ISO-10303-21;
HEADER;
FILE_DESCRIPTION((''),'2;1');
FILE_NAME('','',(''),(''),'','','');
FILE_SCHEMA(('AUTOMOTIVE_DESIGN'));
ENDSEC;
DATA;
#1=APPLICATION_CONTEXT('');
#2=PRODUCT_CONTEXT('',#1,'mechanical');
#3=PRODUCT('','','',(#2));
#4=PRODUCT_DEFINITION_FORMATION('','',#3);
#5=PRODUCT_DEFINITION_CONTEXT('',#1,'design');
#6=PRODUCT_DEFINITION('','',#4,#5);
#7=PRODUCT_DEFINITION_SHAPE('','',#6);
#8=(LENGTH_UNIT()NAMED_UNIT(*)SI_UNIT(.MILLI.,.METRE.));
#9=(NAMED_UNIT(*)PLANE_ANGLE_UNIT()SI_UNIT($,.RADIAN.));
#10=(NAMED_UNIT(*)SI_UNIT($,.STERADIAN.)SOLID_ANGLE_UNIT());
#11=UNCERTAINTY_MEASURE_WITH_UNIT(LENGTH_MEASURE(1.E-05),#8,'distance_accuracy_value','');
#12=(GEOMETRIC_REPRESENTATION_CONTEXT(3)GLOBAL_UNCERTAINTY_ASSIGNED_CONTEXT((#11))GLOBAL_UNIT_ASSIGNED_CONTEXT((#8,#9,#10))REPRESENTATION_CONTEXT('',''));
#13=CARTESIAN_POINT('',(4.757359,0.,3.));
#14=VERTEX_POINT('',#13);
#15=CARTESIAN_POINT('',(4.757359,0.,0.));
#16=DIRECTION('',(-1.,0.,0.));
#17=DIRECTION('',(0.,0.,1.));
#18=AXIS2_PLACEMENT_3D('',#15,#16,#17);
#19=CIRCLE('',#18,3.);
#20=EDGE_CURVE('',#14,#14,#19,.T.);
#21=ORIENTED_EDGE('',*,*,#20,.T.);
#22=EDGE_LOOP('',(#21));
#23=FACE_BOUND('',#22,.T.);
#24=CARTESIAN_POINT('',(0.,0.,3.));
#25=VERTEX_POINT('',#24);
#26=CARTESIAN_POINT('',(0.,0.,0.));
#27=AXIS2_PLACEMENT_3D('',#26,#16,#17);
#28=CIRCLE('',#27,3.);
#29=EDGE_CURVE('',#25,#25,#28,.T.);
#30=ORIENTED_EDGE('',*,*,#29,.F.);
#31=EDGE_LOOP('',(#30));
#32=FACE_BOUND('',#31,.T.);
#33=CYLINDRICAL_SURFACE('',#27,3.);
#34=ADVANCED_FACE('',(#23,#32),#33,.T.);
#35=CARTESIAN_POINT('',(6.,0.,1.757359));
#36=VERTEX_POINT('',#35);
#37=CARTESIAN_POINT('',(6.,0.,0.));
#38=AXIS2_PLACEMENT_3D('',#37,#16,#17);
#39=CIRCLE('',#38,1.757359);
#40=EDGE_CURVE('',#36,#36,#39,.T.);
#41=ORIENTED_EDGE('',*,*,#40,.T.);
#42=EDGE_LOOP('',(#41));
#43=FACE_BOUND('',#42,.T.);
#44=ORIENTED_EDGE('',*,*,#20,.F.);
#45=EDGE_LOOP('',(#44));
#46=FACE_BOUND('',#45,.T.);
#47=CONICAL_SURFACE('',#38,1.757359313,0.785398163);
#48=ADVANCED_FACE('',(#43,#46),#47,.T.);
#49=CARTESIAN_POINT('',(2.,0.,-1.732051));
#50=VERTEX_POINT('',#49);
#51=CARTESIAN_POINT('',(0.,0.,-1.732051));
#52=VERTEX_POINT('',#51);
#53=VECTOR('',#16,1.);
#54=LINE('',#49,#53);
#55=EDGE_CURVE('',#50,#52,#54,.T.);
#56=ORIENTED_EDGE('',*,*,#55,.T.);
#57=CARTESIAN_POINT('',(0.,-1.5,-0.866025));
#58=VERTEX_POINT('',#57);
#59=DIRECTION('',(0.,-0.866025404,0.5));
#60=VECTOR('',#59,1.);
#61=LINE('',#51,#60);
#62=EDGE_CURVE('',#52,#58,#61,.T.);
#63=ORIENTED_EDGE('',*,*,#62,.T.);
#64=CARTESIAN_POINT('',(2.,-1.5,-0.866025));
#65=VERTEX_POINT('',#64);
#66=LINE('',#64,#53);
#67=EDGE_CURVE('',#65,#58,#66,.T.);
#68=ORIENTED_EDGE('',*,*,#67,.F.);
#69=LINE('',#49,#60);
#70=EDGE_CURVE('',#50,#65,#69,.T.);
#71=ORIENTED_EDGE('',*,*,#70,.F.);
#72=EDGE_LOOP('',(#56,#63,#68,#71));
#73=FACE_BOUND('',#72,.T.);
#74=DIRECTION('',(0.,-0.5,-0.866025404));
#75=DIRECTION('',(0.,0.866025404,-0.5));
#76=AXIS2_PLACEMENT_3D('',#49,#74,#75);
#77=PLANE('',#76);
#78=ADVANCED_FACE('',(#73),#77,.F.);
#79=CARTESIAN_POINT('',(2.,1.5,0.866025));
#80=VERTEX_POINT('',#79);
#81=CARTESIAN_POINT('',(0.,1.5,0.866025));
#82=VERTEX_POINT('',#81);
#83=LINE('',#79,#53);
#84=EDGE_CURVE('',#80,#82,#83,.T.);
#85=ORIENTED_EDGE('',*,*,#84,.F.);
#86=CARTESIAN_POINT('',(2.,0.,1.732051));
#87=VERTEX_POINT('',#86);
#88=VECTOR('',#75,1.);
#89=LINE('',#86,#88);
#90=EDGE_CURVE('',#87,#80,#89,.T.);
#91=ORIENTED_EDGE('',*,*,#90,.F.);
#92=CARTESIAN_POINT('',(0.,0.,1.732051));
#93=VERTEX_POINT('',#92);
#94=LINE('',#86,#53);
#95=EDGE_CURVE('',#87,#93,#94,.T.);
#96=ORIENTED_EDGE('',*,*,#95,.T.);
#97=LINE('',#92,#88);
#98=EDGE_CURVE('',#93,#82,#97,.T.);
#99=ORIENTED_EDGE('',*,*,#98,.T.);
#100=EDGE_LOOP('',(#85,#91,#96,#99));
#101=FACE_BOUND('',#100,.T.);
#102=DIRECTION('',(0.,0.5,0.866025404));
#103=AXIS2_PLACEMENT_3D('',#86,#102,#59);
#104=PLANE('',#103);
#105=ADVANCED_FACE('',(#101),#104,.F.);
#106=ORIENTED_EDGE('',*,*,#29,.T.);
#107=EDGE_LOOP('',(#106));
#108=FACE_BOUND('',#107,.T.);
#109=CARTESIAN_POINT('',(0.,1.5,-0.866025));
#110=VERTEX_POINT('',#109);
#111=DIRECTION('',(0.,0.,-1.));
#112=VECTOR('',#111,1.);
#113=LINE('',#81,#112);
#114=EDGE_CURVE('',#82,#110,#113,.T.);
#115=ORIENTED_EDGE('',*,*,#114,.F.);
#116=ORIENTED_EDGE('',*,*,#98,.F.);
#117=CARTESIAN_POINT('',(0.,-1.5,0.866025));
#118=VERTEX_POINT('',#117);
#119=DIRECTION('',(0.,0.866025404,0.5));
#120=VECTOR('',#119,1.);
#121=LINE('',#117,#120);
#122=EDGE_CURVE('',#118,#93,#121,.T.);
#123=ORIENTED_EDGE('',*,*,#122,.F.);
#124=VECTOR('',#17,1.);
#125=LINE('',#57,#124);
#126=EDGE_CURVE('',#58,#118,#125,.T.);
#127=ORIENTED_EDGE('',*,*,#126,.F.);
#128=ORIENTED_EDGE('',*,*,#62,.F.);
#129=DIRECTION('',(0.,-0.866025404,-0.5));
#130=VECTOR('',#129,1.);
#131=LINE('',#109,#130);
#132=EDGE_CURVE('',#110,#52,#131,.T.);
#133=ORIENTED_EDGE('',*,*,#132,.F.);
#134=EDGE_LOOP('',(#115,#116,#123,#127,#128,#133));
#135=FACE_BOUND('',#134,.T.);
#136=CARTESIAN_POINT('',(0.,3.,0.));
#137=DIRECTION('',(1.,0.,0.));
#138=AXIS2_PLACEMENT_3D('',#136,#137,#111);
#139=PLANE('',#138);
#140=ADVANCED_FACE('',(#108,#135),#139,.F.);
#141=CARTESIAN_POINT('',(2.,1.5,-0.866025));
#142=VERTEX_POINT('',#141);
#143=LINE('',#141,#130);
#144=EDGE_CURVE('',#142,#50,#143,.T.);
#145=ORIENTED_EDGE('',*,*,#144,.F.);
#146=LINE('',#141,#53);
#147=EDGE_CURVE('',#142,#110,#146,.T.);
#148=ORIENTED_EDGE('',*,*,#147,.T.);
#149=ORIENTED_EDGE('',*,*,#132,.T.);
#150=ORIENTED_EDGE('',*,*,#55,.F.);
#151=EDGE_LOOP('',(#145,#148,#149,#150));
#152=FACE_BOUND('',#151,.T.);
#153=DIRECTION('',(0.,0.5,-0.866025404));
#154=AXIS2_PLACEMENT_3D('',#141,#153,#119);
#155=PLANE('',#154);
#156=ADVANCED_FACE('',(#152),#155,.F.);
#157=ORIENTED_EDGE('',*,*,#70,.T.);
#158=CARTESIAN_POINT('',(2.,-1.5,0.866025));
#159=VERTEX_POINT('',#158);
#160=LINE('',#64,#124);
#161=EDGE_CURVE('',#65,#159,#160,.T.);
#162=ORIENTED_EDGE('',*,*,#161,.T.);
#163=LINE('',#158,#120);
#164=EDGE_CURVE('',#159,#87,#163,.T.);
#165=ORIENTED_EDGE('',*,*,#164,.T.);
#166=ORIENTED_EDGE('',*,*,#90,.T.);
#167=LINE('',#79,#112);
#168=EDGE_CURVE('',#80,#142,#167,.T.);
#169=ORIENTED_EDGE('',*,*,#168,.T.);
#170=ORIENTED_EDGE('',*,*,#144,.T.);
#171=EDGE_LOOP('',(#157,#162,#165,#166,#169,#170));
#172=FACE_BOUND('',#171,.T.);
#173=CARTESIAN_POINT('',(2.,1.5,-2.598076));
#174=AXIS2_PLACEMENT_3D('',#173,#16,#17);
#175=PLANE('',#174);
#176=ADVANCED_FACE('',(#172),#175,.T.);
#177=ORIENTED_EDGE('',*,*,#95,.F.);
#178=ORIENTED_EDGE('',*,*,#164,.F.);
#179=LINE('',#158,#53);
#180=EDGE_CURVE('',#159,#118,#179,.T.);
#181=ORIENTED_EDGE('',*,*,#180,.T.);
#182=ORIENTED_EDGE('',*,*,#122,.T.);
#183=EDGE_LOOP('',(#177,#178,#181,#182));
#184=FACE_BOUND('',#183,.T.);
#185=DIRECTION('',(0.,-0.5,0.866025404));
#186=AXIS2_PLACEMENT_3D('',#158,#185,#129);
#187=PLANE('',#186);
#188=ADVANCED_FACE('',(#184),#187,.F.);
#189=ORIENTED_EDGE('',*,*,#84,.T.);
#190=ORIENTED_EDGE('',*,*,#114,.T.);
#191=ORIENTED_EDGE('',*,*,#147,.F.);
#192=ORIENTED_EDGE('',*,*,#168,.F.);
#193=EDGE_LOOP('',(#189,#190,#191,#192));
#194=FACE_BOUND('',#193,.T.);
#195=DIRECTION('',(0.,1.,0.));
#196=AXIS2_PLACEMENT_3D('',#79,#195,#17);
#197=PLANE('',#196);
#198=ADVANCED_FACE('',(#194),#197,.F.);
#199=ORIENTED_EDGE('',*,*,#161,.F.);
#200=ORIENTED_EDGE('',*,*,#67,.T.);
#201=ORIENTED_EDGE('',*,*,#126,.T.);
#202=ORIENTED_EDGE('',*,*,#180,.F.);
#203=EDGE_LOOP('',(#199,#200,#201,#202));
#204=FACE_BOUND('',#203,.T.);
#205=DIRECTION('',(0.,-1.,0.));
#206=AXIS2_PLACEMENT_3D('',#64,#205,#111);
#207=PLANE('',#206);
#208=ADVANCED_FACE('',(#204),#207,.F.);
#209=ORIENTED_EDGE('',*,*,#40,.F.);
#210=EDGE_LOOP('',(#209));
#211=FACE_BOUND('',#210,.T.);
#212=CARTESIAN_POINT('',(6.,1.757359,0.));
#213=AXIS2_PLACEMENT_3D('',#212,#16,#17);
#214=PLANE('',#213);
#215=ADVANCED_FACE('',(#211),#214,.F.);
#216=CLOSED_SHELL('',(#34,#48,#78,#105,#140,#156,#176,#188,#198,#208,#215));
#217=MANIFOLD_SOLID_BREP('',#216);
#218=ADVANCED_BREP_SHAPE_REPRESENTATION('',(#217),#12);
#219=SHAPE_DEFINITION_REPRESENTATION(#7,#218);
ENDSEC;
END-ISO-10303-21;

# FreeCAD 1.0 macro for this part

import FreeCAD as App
import Part
import Sketcher
from FreeCAD import Vector
Q = App.Units.Quantity


def add_polygon(sketch, points):
    """Adds a closed chain of lines whose ends are joined by coincident constraints."""
    first, n = sketch.GeometryCount, len(points)
    for a, b in zip(points, points[1:] + points[:1]):
        sketch.addGeometry(Part.LineSegment(App.Vector(*a, 0), App.Vector(*b, 0)), False)
    for i in range(n):
        sketch.addConstraint(Sketcher.Constraint("Coincident", first + i, 2, first + (i + 1) % n, 1))

doc = App.newDocument("Part")
body = doc.addObject("PartDesign::Body", "Body")

sketch1 = body.newObject("Sketcher::SketchObject", "Sketch")
sketch1.AttachmentSupport = (doc.getObject("XY_Plane"), [""])
sketch1.MapMode = "FlatFace"
add_polygon(sketch1, [(6, 0), (6, 1.8), (4.8, 3), (0, 3), (0, 0)])
sketch1.addConstraint([
    Sketcher.Constraint("Vertical", 0),
    Sketcher.Constraint("Horizontal", 2),
    Sketcher.Constraint("Vertical", 3),
    Sketcher.Constraint("Horizontal", 4),
    Sketcher.Constraint("Coincident", 3, 2, -1, 1),
    Sketcher.Constraint("DistanceX", 4, 1, 4, 2, 6.0),
    Sketcher.Constraint("DistanceY", 3, 2, 3, 1, 3.0),
    Sketcher.Constraint("Angle", 1, Q("135 deg")),
    Sketcher.Constraint("DistanceX", 2, 2, 2, 1, 4.757359),
])
revolution = body.newObject("PartDesign::Revolution", "Revolution")
revolution.Profile = sketch1
revolution.ReferenceAxis = (sketch1, ["H_Axis"])
revolution.Angle = 360

sketch2 = body.newObject("Sketcher::SketchObject", "Sketch001")
sketch2.AttachmentSupport = (doc.getObject("YZ_Plane"), [""])
sketch2.MapMode = "FlatFace"
add_polygon(sketch2, [(1.5, -0.9), (0, -1.7), (-1.5, -0.9), (-1.5, 0.9), (0, 1.7), (1.5, 0.9)])
sketch2.addConstraint([
    Sketcher.Constraint("Vertical", 2),
    Sketcher.Constraint("Vertical", 5),
    Sketcher.Constraint("Symmetric", 0, 2, 3, 2, -1, 1),
    Sketcher.Constraint("Symmetric", 1, 2, 4, 2, -1, 1),
    Sketcher.Constraint("PointOnObject", 0, 2, -2),
    Sketcher.Constraint("Parallel", 0, 3),
    Sketcher.Constraint("Horizontal", 2, 2, 4, 2),
    Sketcher.Constraint("Angle", 0, Q("-150 deg")),
    Sketcher.Constraint("DistanceX", 2, 2, 4, 2, 3.0),
    Sketcher.Constraint("DistanceY", 2, 1, 2, 2, 1.732051),
])
pocket1 = body.newObject("PartDesign::Pocket", "Pocket")
pocket1.Profile = sketch2
pocket1.Length = 2
pocket1.Reversed = True

doc.recompute()
